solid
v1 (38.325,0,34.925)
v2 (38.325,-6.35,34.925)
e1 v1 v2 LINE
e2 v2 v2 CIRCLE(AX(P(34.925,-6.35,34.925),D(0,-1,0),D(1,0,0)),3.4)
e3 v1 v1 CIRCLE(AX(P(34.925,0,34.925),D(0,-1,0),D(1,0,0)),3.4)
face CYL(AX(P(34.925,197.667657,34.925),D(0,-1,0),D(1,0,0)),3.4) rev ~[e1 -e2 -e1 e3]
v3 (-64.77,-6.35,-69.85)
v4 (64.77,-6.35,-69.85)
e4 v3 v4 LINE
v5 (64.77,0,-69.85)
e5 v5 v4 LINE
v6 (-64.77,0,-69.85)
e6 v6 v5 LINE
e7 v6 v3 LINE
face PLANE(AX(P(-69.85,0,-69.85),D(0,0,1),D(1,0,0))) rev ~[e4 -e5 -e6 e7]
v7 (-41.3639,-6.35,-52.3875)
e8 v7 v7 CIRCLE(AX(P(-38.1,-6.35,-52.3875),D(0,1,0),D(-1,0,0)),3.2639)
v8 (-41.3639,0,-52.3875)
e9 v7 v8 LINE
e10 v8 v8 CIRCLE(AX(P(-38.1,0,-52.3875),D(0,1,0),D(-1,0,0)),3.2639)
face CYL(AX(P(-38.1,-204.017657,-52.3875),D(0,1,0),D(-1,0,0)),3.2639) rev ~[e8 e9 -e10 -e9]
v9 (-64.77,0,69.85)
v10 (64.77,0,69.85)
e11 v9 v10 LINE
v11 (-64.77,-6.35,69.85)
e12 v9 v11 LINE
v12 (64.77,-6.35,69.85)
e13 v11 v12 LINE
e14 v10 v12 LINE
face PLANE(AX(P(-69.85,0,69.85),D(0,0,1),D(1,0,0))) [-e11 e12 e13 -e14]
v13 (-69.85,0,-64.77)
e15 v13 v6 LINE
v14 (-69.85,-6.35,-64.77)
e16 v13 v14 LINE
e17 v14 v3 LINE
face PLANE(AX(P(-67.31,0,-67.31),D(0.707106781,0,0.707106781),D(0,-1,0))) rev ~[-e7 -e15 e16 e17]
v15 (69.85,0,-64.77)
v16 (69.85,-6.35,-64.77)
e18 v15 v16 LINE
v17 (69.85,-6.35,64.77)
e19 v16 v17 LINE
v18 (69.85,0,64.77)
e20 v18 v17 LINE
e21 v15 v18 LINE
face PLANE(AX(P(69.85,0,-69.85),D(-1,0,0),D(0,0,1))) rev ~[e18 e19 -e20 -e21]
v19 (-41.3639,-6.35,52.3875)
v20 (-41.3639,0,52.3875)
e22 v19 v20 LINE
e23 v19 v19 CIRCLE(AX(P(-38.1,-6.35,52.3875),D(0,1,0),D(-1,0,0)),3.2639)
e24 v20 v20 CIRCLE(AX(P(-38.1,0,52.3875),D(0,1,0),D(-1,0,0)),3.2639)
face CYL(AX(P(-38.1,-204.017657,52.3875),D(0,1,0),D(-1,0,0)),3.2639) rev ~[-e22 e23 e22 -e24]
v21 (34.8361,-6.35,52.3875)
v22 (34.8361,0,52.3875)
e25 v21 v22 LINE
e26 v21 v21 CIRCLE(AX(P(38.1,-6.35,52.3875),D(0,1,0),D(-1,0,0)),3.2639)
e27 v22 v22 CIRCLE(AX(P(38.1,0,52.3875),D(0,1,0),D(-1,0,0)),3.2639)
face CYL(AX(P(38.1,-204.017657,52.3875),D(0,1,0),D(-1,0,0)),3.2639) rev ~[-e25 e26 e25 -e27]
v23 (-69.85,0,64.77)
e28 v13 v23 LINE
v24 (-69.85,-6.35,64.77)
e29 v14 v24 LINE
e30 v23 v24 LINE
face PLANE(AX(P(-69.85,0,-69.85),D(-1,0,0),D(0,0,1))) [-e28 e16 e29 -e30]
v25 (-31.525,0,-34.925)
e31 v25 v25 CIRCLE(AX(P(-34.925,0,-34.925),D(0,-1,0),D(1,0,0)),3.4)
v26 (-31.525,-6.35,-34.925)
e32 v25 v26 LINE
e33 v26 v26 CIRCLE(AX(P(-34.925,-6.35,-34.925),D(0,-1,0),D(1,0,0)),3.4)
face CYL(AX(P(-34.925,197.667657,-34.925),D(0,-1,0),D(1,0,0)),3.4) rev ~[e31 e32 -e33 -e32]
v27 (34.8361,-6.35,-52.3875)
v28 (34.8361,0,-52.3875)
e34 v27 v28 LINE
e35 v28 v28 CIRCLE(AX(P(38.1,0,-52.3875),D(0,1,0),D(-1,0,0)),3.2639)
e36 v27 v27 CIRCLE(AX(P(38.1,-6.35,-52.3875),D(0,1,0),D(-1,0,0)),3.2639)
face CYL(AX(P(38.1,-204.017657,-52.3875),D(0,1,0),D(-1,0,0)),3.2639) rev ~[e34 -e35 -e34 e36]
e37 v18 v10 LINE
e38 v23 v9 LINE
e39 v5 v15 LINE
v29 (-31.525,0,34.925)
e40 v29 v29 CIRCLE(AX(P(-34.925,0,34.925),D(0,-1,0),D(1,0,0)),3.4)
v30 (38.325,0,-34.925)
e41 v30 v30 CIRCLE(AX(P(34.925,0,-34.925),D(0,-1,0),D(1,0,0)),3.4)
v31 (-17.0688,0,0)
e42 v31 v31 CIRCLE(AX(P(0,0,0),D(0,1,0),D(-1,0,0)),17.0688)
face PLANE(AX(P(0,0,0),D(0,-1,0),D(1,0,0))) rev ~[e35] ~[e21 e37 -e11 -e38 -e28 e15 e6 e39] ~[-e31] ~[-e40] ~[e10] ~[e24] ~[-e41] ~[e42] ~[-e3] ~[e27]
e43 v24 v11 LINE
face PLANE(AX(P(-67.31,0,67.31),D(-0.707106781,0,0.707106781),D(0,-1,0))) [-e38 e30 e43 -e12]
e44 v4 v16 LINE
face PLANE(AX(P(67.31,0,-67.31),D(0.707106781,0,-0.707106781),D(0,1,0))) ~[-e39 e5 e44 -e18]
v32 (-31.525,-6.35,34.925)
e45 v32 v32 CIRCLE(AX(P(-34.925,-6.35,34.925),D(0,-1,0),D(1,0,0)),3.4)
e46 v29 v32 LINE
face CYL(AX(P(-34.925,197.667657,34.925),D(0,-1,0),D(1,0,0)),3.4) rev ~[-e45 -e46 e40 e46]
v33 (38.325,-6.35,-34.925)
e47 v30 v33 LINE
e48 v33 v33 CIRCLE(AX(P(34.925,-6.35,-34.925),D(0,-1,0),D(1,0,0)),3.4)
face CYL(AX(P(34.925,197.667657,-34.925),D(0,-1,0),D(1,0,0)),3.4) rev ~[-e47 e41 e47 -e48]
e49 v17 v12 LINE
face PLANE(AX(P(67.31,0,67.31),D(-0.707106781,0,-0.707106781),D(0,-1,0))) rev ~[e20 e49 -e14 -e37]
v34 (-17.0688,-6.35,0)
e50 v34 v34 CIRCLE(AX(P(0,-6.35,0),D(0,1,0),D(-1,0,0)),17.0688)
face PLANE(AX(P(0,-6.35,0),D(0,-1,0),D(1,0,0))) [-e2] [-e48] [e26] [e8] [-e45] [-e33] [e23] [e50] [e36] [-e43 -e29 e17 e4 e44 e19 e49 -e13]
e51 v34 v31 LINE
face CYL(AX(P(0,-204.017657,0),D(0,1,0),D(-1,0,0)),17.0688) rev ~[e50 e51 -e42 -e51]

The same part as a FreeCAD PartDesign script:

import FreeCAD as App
import Part
import Sketcher
Q = App.Units.Quantity


def edges_at(feature, points):
    """Names of the edges that pass closest to the given points."""
    edges = feature.Shape.Edges
    near = lambda p: min(range(len(edges)), key=lambda i: edges[i].distToShape(Part.Vertex(*p))[0])
    return sorted({f"Edge{near(p) + 1}" for p in points})


def add_polygon(sketch, points):
    """Adds a closed chain of lines whose ends are joined by coincident constraints."""
    first, n = sketch.GeometryCount, len(points)
    for a, b in zip(points, points[1:] + points[:1]):
        sketch.addGeometry(Part.LineSegment(App.Vector(*a, 0), App.Vector(*b, 0)), False)
    for i in range(n):
        sketch.addConstraint(Sketcher.Constraint("Coincident", first + i, 2, first + (i + 1) % n, 1))

doc = App.newDocument("Part")
body = doc.addObject("PartDesign::Body", "Body")

# Sketch on XZ plane
sketch1 = body.newObject("Sketcher::SketchObject", "Sketch")
sketch1.AttachmentSupport = (doc.getObject("XZ_Plane"), [""])
sketch1.MapMode = "FlatFace"
add_polygon(sketch1, [(-69.85, 69.85), (-69.85, -69.85), (69.85, -69.85), (69.85, 69.85)])  # lines 0-3
sketch1.addConstraint(Sketcher.Constraint("Vertical", 0))
sketch1.addConstraint(Sketcher.Constraint("Horizontal", 1))
sketch1.addConstraint(Sketcher.Constraint("Vertical", 2))
sketch1.addConstraint(Sketcher.Constraint("Horizontal", 3))
sketch1.addConstraint(Sketcher.Constraint("Symmetric", 0, 2, 2, 2, -1, 1))
sketch1.addConstraint(Sketcher.Constraint("Equal", 3, 0))
sketch1.addConstraint(Sketcher.Constraint("DistanceX", 1, 1, 1, 2, Q("5.5 in")))
pad1 = body.newObject("PartDesign::Pad", "Pad")
pad1.Profile = sketch1
pad1.Length = Q("0.25 in")
doc.recompute()

chamfer = body.newObject("PartDesign::Chamfer", "Chamfer")
chamfer.Base = (pad1, edges_at(pad1, [
    (-69.85, -3.175, 69.85),
    (69.85, -3.175, 69.85),
    (69.85, -3.175, -69.85),
    (-69.85, -3.175, -69.85),
]))
chamfer.Size = Q("0.2 in")

# Sketch on XZ plane
sketch2 = body.newObject("Sketcher::SketchObject", "Sketch001")
sketch2.AttachmentSupport = (doc.getObject("XZ_Plane"), [""])
sketch2.MapMode = "FlatFace"
sketch2.addGeometry(Part.Circle(App.Vector(34.925, 34.925, 0), App.Vector(0, 0, 1), 3.4), False)
sketch2.addGeometry(Part.Circle(App.Vector(34.925, -34.925, 0), App.Vector(0, 0, 1), 3.4), False)
sketch2.addGeometry(Part.Circle(App.Vector(-34.925, -34.925, 0), App.Vector(0, 0, 1), 3.4), False)
sketch2.addGeometry(Part.Circle(App.Vector(-34.925, 34.925, 0), App.Vector(0, 0, 1), 3.4), False)
sketch2.addConstraint(Sketcher.Constraint("Equal", 0, 1))
sketch2.addConstraint(Sketcher.Constraint("Equal", 1, 2))
sketch2.addConstraint(Sketcher.Constraint("Equal", 2, 3))
sketch2.addConstraint(Sketcher.Constraint("Symmetric", 0, 3, 2, 3, -1, 1))
sketch2.addConstraint(Sketcher.Constraint("Symmetric", 1, 3, 3, 3, -1, 1))
sketch2.addConstraint(Sketcher.Constraint("Symmetric", 1, 3, 2, 3, -2))
sketch2.addConstraint(Sketcher.Constraint("Diameter", 0, Q("6.8 mm")))
sketch2.addConstraint(Sketcher.Constraint("DistanceY", 1, 3, 0, 3, Q("2.75 in")))
sketch2.addConstraint(Sketcher.Constraint("DistanceX", 2, 3, 1, 3, Q("2.75 in")))
doc.recompute()
hole = body.newObject("PartDesign::Hole", "Hole")
hole.Profile = sketch2
hole.ThreadType = "None"
hole.Diameter = 6.8
hole.DepthType = "ThroughAll"
hole.Reversed = True

# Sketch on XZ plane
sketch3 = body.newObject("Sketcher::SketchObject", "Sketch002")
sketch3.AttachmentSupport = (doc.getObject("XZ_Plane"), [""])
sketch3.MapMode = "FlatFace"
sketch3.AttachmentOffset = App.Placement(App.Vector(0, 0, 0.25 * 25.4), App.Rotation())
sketch3.addGeometry(Part.Circle(App.Vector(38.1, 52.3875, 0), App.Vector(0, 0, 1), 3.2639), False)
sketch3.addGeometry(Part.Circle(App.Vector(-38.1, 52.3875, 0), App.Vector(0, 0, 1), 3.2639), False)
sketch3.addGeometry(Part.Circle(App.Vector(-38.1, -52.3875, 0), App.Vector(0, 0, 1), 3.2639), False)
sketch3.addGeometry(Part.Circle(App.Vector(38.1, -52.3875, 0), App.Vector(0, 0, 1), 3.2639), False)
sketch3.addConstraint(Sketcher.Constraint("Equal", 0, 1))
sketch3.addConstraint(Sketcher.Constraint("Equal", 1, 2))
sketch3.addConstraint(Sketcher.Constraint("Equal", 2, 3))
sketch3.addConstraint(Sketcher.Constraint("Symmetric", 0, 3, 2, 3, -1, 1))
sketch3.addConstraint(Sketcher.Constraint("Symmetric", 1, 3, 3, 3, -1, 1))
sketch3.addConstraint(Sketcher.Constraint("Symmetric", 0, 3, 1, 3, -2))
sketch3.addConstraint(Sketcher.Constraint("Diameter", 0, Q("0.257 in")))
sketch3.addConstraint(Sketcher.Constraint("DistanceX", 1, 3, 0, 3, Q("3 in")))
sketch3.addConstraint(Sketcher.Constraint("DistanceY", -1, 1, 0, 3, Q("2.0625 in")))
doc.recompute()
hole2 = body.newObject("PartDesign::Hole", "Hole001")
hole2.Profile = sketch3
hole2.ThreadType = "None"
hole2.Diameter = Q("0.257 in")
hole2.DepthType = "ThroughAll"

# Sketch on XZ plane
sketch4 = body.newObject("Sketcher::SketchObject", "Sketch003")
sketch4.AttachmentSupport = (doc.getObject("XZ_Plane"), [""])
sketch4.MapMode = "FlatFace"
sketch4.AttachmentOffset = App.Placement(App.Vector(0, 0, 0.25 * 25.4), App.Rotation())
sketch4.addGeometry(Part.Circle(App.Vector(0, 0, 0), App.Vector(0, 0, 1), 17.0688), False)
sketch4.addConstraint(Sketcher.Constraint("Coincident", 0, 3, -1, 1))
sketch4.addConstraint(Sketcher.Constraint("Diameter", 0, Q("1.344 in")))
doc.recompute()
hole3 = body.newObject("PartDesign::Hole", "Hole002")
hole3.Profile = sketch4
hole3.ThreadType = "None"
hole3.Diameter = Q("1.344 in")
hole3.DepthType = "ThroughAll"

doc.recompute()
